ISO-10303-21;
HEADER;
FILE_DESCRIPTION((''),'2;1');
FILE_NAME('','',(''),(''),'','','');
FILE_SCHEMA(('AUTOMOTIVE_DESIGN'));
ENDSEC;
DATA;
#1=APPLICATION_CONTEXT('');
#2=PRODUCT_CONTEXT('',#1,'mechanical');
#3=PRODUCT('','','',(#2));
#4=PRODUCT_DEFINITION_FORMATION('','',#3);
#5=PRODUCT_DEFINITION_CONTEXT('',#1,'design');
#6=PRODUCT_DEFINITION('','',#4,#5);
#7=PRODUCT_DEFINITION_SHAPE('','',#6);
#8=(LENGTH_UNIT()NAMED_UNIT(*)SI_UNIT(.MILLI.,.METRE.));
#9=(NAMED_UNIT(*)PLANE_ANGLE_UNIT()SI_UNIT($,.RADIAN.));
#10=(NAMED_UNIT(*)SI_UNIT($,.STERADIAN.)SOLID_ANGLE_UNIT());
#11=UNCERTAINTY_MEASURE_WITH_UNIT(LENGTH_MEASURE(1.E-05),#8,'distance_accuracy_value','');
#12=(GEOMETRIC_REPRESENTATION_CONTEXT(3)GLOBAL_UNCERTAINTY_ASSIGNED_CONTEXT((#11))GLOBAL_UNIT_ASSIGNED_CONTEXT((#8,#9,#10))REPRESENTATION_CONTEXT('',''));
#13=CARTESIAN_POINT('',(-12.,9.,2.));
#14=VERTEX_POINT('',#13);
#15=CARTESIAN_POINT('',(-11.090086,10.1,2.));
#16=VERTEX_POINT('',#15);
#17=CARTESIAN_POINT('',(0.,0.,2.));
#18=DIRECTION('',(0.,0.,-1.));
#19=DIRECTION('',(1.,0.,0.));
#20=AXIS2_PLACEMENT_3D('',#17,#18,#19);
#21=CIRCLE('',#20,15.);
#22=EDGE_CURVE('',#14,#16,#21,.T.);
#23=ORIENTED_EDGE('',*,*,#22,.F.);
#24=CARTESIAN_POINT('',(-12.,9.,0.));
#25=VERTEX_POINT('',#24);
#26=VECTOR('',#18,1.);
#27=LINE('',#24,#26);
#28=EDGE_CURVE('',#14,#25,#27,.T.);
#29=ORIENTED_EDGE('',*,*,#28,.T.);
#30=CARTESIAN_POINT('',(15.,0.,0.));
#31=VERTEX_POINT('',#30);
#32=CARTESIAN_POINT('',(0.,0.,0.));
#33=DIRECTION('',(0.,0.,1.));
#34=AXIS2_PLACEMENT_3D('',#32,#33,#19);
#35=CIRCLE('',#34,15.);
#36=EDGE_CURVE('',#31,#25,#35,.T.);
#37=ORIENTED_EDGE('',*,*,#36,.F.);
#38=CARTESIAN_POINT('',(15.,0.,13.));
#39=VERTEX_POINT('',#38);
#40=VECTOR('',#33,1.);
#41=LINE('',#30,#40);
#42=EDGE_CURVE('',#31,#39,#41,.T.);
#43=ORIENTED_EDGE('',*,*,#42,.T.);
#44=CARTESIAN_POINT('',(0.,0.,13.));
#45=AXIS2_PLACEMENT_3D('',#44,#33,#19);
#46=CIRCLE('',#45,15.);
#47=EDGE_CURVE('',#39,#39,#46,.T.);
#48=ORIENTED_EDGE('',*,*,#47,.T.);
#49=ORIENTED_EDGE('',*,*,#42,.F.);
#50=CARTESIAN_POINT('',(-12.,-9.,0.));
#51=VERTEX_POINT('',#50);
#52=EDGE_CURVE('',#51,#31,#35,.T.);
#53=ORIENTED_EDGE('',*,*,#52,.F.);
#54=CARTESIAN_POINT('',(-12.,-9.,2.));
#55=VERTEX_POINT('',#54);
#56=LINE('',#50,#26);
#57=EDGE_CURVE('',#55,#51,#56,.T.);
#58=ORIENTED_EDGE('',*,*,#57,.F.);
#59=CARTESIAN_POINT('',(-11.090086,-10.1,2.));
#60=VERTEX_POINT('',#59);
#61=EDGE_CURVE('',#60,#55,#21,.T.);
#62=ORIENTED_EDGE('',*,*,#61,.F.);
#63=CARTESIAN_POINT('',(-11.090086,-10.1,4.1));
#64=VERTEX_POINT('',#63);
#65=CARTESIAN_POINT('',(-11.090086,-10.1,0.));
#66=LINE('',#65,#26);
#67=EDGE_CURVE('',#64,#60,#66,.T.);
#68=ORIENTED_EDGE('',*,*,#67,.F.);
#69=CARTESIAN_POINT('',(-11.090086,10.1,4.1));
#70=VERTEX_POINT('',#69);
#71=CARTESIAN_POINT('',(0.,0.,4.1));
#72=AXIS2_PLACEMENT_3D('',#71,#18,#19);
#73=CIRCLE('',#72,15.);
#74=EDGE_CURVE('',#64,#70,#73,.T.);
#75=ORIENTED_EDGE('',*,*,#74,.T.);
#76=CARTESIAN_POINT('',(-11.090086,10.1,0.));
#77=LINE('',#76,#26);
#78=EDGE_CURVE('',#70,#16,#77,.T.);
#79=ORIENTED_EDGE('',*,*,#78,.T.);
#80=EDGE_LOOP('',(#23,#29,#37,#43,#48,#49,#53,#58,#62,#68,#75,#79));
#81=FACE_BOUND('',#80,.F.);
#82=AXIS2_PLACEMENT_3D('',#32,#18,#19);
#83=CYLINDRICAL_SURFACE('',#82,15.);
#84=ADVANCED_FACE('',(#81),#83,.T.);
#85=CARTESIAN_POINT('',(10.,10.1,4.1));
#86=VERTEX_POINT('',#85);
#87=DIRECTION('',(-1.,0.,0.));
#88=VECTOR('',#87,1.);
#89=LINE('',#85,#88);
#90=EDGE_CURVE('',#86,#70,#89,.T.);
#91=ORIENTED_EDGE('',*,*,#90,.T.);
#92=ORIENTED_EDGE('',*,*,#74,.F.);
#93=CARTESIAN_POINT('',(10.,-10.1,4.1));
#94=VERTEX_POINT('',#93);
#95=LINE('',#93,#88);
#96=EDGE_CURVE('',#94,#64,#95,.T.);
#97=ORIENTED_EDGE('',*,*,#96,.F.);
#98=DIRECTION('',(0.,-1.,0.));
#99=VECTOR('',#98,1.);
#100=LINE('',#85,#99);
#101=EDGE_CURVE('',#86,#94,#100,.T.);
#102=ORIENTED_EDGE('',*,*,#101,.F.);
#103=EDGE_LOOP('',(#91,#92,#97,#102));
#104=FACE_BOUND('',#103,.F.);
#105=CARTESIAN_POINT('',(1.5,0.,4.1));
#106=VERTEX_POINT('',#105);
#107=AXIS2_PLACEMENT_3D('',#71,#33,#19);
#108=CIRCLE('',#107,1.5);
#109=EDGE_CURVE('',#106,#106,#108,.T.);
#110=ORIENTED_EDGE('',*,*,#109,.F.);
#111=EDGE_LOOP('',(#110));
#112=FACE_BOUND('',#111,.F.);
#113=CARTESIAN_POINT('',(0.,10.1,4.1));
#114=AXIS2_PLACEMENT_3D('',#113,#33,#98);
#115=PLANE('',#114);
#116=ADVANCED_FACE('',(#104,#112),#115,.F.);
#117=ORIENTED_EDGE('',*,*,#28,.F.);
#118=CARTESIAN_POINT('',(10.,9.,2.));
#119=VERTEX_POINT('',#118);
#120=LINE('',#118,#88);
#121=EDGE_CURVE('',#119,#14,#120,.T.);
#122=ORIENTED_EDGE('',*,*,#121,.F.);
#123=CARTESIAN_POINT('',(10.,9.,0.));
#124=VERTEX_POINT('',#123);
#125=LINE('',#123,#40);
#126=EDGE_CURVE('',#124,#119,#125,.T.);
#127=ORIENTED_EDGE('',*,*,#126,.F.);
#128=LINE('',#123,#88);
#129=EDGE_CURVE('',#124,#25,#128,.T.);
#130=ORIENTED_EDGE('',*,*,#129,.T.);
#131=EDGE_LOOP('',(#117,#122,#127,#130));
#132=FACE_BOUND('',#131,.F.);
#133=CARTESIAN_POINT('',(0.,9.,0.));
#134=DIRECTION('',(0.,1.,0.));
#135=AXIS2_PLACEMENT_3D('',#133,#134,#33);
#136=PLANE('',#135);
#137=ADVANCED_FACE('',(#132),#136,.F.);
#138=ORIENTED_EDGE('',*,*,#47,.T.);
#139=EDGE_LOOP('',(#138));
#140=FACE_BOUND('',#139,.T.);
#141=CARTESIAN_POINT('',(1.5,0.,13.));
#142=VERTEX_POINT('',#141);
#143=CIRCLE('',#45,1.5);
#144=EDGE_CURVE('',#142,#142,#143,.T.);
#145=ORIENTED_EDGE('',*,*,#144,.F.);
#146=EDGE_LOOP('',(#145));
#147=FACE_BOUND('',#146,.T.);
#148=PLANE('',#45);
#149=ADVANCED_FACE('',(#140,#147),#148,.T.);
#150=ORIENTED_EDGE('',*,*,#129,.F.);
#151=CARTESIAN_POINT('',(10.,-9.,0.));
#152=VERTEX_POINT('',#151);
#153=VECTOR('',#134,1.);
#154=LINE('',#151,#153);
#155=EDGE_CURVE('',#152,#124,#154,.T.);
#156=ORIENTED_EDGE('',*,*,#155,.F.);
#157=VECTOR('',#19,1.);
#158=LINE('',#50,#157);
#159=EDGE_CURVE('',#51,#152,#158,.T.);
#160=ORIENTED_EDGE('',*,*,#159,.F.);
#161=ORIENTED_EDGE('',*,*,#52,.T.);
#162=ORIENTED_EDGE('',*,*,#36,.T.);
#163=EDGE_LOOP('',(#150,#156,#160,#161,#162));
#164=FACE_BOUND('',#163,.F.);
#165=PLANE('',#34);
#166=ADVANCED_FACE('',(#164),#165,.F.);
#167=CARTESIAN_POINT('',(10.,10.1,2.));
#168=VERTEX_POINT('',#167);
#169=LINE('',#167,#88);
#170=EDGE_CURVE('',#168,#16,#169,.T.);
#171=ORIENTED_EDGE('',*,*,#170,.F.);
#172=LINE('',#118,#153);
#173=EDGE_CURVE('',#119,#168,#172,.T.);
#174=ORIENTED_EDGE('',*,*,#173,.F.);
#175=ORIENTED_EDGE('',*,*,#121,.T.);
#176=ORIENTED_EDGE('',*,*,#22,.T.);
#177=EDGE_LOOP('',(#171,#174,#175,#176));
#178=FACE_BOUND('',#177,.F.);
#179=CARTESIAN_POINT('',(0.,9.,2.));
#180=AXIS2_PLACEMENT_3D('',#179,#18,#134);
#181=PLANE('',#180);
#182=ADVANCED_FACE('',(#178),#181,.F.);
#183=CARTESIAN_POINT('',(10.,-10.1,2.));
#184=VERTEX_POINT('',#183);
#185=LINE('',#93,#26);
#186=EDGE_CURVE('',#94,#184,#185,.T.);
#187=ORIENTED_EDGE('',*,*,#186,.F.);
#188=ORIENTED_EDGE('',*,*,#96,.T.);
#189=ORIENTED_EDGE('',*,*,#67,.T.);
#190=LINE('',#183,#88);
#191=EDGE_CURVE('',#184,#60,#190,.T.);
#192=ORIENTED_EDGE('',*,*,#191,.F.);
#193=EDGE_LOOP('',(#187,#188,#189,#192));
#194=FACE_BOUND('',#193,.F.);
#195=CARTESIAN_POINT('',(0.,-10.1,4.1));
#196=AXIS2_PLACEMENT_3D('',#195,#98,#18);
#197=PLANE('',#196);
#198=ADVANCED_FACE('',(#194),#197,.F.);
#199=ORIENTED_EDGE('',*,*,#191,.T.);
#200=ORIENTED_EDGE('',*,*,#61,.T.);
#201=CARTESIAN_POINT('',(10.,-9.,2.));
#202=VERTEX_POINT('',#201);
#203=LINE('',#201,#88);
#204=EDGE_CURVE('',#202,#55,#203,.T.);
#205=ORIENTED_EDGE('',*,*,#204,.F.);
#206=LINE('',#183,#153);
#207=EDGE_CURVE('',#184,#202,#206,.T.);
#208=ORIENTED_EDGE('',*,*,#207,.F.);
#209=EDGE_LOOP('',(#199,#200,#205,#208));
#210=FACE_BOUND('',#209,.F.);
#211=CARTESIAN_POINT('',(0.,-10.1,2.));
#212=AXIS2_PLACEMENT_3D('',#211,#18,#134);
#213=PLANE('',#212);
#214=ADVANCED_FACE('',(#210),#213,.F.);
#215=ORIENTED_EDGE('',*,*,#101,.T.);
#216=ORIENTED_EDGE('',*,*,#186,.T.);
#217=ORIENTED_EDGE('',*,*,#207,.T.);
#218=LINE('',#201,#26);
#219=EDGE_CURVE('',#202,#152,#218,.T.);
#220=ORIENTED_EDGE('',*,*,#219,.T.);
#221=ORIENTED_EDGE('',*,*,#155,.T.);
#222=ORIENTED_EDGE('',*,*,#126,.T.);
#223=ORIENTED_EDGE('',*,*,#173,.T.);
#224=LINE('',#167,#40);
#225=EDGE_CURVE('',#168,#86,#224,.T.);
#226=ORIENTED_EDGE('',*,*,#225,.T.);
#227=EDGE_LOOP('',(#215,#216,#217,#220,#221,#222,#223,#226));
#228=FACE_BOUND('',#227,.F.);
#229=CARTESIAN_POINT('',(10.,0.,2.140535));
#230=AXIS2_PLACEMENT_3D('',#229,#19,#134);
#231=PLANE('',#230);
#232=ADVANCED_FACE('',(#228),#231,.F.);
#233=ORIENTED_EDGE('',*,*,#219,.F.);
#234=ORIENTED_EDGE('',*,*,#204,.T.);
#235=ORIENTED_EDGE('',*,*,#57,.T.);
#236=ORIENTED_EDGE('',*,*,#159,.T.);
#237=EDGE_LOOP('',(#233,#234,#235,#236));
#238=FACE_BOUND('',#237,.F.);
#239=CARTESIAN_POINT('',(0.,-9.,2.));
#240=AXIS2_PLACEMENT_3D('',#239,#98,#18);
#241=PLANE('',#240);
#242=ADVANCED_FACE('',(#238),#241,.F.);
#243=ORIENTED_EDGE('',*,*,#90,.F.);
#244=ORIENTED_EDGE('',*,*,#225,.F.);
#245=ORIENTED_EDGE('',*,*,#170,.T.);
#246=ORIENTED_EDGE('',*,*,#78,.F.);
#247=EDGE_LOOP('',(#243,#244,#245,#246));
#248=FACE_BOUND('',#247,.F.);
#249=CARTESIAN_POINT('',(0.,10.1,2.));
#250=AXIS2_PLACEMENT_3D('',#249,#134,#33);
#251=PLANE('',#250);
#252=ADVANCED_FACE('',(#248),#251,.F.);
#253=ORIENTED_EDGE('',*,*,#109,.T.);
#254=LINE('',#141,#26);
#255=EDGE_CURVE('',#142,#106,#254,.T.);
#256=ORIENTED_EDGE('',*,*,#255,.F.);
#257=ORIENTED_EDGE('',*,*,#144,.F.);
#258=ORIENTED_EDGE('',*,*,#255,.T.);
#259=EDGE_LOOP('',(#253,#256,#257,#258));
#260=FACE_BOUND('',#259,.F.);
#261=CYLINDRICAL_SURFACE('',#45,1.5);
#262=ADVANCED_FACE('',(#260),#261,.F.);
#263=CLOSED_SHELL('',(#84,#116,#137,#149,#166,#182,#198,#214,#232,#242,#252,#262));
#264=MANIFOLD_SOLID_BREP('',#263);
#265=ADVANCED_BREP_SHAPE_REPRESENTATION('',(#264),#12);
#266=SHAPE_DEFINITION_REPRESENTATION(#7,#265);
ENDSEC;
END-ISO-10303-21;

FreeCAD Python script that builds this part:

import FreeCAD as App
import Part
import Sketcher
from FreeCAD import Vector


def add_polygon(sketch, points):
    """Adds a closed chain of lines whose ends are joined by coincident constraints."""
    first, n = sketch.GeometryCount, len(points)
    for a, b in zip(points, points[1:] + points[:1]):
        sketch.addGeometry(Part.LineSegment(App.Vector(*a, 0), App.Vector(*b, 0)), False)
    for i in range(n):
        sketch.addConstraint(Sketcher.Constraint("Coincident", first + i, 2, first + (i + 1) % n, 1))

doc = App.newDocument("Part")
body = doc.addObject("PartDesign::Body", "Body")

sketch1 = body.newObject("Sketcher::SketchObject", "Sketch")
sketch1.AttachmentSupport = (doc.getObject("XY_Plane"), [""])
sketch1.MapMode = "FlatFace"
sketch1.addGeometry(Part.Circle(Vector(0, 0, 0), Vector(0, 0, 1), 15), False)
sketch1.addConstraint([
    Sketcher.Constraint("Coincident", 0, 3, -1, 1),
    Sketcher.Constraint("Diameter", 0, 30.0),
])
pad1 = body.newObject("PartDesign::Pad", "Pad")
pad1.Profile = sketch1
pad1.Length = 13

sketch2 = body.newObject("Sketcher::SketchObject", "Sketch001")
sketch2.AttachmentSupport = (doc.getObject("YZ_Plane"), [""])
sketch2.MapMode = "FlatFace"
add_polygon(sketch2, [(-9, 2), (-9, 0), (9, 0), (9, 2), (10.1, 2), (10.1, 4.1), (-10.1, 4.1), (-10.1, 2)])
sketch2.addConstraint([
    Sketcher.Constraint("Vertical", 0),
    Sketcher.Constraint("Horizontal", 1),
    Sketcher.Constraint("Vertical", 2),
    Sketcher.Constraint("Horizontal", 3),
    Sketcher.Constraint("Vertical", 4),
    Sketcher.Constraint("Horizontal", 5),
    Sketcher.Constraint("Vertical", 6),
    Sketcher.Constraint("Horizontal", 7),
    Sketcher.Constraint("Symmetric", 0, 2, 1, 2, -1, 1),
    Sketcher.Constraint("Symmetric", 3, 2, 6, 2, -2),
    Sketcher.Constraint("DistanceX", 1, 1, 1, 2, 18.0),
    Sketcher.Constraint("DistanceY", 0, 2, 0, 1, 2.0),
    Sketcher.Constraint("DistanceX", 3, 1, 3, 2, 1.1),
    Sketcher.Constraint("DistanceY", 4, 1, 4, 2, 2.1),
])
pocket1 = body.newObject("PartDesign::Pocket", "Pocket")
pocket1.Profile = sketch2
pocket1.Type = "TwoLengths"
pocket1.Length = 25
pocket1.Length2 = 10

sketch3 = body.newObject("Sketcher::SketchObject", "Sketch002")
sketch3.AttachmentSupport = (doc.getObject("XY_Plane"), [""])
sketch3.MapMode = "FlatFace"
sketch3.AttachmentOffset = App.Placement(Vector(0, 0, 13), App.Rotation())
sketch3.addGeometry(Part.Circle(Vector(0, 0, 0), Vector(0, 0, 1), 1.5), False)
sketch3.addConstraint([
    Sketcher.Constraint("Coincident", 0, 3, -1, 1),
    Sketcher.Constraint("Diameter", 0, 3.0),
])
pocket2 = body.newObject("PartDesign::Pocket", "Pocket001")
pocket2.Profile = sketch3
pocket2.Type = "ThroughAll"

doc.recompute()
